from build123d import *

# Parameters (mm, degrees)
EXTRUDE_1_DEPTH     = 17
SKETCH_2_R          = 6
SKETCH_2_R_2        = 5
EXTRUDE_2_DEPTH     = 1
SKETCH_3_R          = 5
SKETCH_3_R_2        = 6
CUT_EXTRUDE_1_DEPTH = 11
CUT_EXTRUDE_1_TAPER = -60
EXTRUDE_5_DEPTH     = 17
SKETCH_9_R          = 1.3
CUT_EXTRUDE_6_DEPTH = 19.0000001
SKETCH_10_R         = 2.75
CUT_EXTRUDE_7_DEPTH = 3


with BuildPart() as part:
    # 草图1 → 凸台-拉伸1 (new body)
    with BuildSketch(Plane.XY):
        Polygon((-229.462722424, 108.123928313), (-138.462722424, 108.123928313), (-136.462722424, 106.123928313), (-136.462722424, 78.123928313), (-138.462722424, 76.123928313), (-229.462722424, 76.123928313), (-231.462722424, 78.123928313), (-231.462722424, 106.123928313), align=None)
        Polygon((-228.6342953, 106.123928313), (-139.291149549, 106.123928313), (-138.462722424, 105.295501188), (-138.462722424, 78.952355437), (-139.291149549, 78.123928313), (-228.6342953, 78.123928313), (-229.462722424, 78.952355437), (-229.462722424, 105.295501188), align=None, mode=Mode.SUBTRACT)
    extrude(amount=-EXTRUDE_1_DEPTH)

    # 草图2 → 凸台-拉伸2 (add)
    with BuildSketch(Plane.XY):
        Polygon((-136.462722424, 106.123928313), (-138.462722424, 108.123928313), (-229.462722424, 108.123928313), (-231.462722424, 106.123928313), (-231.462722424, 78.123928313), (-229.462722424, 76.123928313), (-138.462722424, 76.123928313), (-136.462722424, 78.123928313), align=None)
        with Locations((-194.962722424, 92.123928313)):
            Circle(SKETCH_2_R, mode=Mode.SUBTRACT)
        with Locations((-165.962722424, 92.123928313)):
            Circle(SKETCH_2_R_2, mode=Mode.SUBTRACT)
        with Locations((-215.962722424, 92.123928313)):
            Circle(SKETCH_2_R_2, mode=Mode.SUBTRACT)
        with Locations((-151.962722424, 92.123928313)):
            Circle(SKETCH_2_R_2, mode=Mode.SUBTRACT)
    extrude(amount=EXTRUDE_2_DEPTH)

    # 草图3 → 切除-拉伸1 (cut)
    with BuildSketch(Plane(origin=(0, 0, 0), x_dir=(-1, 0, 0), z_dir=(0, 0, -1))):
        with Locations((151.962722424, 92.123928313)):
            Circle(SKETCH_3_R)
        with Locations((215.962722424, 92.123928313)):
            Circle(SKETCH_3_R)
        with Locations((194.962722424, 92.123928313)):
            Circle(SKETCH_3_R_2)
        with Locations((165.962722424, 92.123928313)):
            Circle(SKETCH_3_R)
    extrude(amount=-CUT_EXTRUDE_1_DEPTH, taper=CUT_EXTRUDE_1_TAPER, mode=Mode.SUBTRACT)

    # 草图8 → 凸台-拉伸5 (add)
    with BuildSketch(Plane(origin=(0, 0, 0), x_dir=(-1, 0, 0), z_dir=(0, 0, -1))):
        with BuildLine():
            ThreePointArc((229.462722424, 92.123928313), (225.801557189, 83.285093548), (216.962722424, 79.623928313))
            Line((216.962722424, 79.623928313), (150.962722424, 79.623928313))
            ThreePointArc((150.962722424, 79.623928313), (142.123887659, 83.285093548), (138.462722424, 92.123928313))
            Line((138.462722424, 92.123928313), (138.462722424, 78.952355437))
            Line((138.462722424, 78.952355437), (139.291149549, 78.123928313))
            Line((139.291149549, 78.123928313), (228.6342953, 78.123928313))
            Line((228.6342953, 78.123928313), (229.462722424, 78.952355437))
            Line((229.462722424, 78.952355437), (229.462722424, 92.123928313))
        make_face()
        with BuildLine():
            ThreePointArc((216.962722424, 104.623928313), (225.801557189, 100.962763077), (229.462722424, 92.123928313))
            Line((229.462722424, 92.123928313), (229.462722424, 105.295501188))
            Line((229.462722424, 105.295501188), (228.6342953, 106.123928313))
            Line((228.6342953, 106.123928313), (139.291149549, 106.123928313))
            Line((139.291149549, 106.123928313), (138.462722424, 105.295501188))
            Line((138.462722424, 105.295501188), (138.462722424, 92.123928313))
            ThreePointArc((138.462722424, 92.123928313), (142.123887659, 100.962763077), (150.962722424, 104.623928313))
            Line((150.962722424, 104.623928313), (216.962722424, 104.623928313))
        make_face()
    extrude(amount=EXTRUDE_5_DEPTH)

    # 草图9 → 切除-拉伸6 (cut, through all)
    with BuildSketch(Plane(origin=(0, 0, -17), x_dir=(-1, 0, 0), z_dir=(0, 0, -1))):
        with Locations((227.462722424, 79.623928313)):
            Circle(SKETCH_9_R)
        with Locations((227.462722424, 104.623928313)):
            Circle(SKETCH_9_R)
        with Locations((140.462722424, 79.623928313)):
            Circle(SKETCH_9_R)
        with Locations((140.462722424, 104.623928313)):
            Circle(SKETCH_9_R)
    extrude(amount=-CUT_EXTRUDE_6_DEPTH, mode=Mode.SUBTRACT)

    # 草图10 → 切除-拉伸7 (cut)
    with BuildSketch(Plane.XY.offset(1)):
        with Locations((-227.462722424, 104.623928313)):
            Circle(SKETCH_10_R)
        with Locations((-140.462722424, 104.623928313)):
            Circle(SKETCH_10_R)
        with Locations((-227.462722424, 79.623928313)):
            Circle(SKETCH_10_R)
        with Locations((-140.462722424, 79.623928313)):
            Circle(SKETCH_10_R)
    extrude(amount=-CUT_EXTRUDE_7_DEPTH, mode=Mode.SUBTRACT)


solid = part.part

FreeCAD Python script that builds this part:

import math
import FreeCAD as App
import Part
import Sketcher
from FreeCAD import Vector
Q = App.Units.Quantity


def add_polygon(sketch, points):
    """Adds a closed chain of lines whose ends are joined by coincident constraints."""
    first, n = sketch.GeometryCount, len(points)
    for a, b in zip(points, points[1:] + points[:1]):
        sketch.addGeometry(Part.LineSegment(App.Vector(*a, 0), App.Vector(*b, 0)), False)
    for i in range(n):
        sketch.addConstraint(Sketcher.Constraint("Coincident", first + i, 2, first + (i + 1) % n, 1))

doc = App.newDocument("Part")
body = doc.addObject("PartDesign::Body", "Body")

# Sketch on XY plane
sketch1 = doc.addObject("Sketcher::SketchObject", "Sketch")
body.addObject(sketch1)
sketch1.AttachmentSupport = (doc.XY_Plane, [""])
sketch1.MapMode = "FlatFace"
add_polygon(sketch1, [(-138.5, 108.1), (-229.5, 108.1), (-231.5, 106.1), (-231.5, 78.1), (-229.5, 76.1), (-138.5, 76.1), (-136.5, 78.1), (-136.5, 106.1)])  # lines 0-7
add_polygon(sketch1, [(-228.6, 106.1), (-139.3, 106.1), (-138.5, 105.3), (-138.5, 79), (-139.3, 78.1), (-228.6, 78.1), (-229.5, 79), (-229.5, 105.3)])  # lines 8-15
sketch1.addConstraint([
    Sketcher.Constraint("Horizontal", 0),
    Sketcher.Constraint("Vertical", 2),
    Sketcher.Constraint("Horizontal", 4),
    Sketcher.Constraint("Vertical", 6),
    Sketcher.Constraint("Horizontal", 8),
    Sketcher.Constraint("Vertical", 10),
    Sketcher.Constraint("Horizontal", 12),
    Sketcher.Constraint("Vertical", 14),
    Sketcher.Constraint("Perpendicular", 1, 3),
    Sketcher.Constraint("Perpendicular", 3, 5),
    Sketcher.Constraint("Perpendicular", 5, 7),
    Sketcher.Constraint("Parallel", 7, 9),
    Sketcher.Constraint("Perpendicular", 9, 11),
    Sketcher.Constraint("Perpendicular", 11, 13),
    Sketcher.Constraint("Perpendicular", 13, 15),
    Sketcher.Constraint("Horizontal", 2, 2, 5, 2),
    Sketcher.Constraint("Horizontal", 1, 2, 6, 2),
    Sketcher.Constraint("Horizontal", 6, 2, 8, 2),
    Sketcher.Constraint("Horizontal", 5, 2, 11, 2),
    Sketcher.Constraint("Horizontal", 10, 2, 13, 2),
    Sketcher.Constraint("Horizontal", 9, 2, 14, 2),
    Sketcher.Constraint("Vertical", 0, 2, 3, 2),
    Sketcher.Constraint("Vertical", 4, 2, 7, 2),
    Sketcher.Constraint("Vertical", 7, 2, 9, 2),
    Sketcher.Constraint("Vertical", 8, 2, 11, 2),
    Sketcher.Constraint("Vertical", 3, 2, 13, 2),
    Sketcher.Constraint("DistanceX", 0, 2, 0, 1, Q("91 mm")),
    Sketcher.Constraint("DistanceY", 2, 2, 2, 1, Q("28 mm")),
    Sketcher.Constraint("DistanceX", 1, 2, 0, 2, Q("2 mm")),
    Sketcher.Constraint("DistanceY", -1, 1, 9, 2, Q("105.295501 mm")),
    Sketcher.Constraint("DistanceX", 8, 1, 8, 2, Q("89.343146 mm")),
    Sketcher.Constraint("DistanceX", 8, 2, -1, 1, Q("139.29115 mm")),
])
pad1 = doc.addObject("PartDesign::Pad", "Pad")
body.addObject(pad1)
pad1.Profile = sketch1
pad1.Length = 17
pad1.Reversed = True

# Sketch on XY plane
sketch2 = doc.addObject("Sketcher::SketchObject", "Sketch001")
body.addObject(sketch2)
sketch2.AttachmentSupport = (doc.XY_Plane, [""])
sketch2.MapMode = "FlatFace"
add_polygon(sketch2, [(-136.5, 106.1), (-138.5, 108.1), (-229.5, 108.1), (-231.5, 106.1), (-231.5, 78.1), (-229.5, 76.1), (-138.5, 76.1), (-136.5, 78.1)])  # lines 0-7
sketch2.addGeometry(Part.Circle(Vector(-216, 92.1, 0), Vector(0, 0, 1), 5), False)  # 8
sketch2.addGeometry(Part.Circle(Vector(-195, 92.1, 0), Vector(0, 0, 1), 6), False)  # 9
sketch2.addGeometry(Part.Circle(Vector(-166, 92.1, 0), Vector(0, 0, 1), 5), False)  # 10
sketch2.addGeometry(Part.Circle(Vector(-152, 92.1, 0), Vector(0, 0, 1), 5), False)  # 11
sketch2.addConstraint([
    Sketcher.Constraint("Horizontal", 1),
    Sketcher.Constraint("Vertical", 3),
    Sketcher.Constraint("Horizontal", 5),
    Sketcher.Constraint("Vertical", 7),
    Sketcher.Constraint("Equal", 8, 10),
    Sketcher.Constraint("Equal", 10, 11),
    Sketcher.Constraint("Perpendicular", 0, 2),
    Sketcher.Constraint("Perpendicular", 2, 4),
    Sketcher.Constraint("Perpendicular", 4, 6),
    Sketcher.Constraint("Horizontal", 8, 3, 9, 3),
    Sketcher.Constraint("Horizontal", 9, 3, 10, 3),
    Sketcher.Constraint("Horizontal", 10, 3, 11, 3),
    Sketcher.Constraint("Horizontal", 3, 2, 6, 2),
    Sketcher.Constraint("Horizontal", 2, 2, 7, 2),
    Sketcher.Constraint("Vertical", 1, 2, 4, 2),
    Sketcher.Constraint("Vertical", 0, 2, 5, 2),
    Sketcher.Constraint("Diameter", 8, Q("10 mm")),
    Sketcher.Constraint("Diameter", 9, Q("12 mm")),
    Sketcher.Constraint("DistanceX", 1, 2, 1, 1, Q("91 mm")),
    Sketcher.Constraint("DistanceY", 3, 2, 3, 1, Q("28 mm")),
    Sketcher.Constraint("DistanceX", 8, 3, 9, 3, Q("21 mm")),
    Sketcher.Constraint("DistanceX", 9, 3, 10, 3, Q("29 mm")),
    Sketcher.Constraint("DistanceX", 10, 3, 11, 3, Q("14 mm")),
    Sketcher.Constraint("DistanceY", 11, 3, 0, 2, Q("16 mm")),
    Sketcher.Constraint("DistanceX", 2, 2, 1, 2, Q("2 mm")),
    Sketcher.Constraint("DistanceX", 11, 3, 0, 2, Q("13.5 mm")),
    Sketcher.Constraint("DistanceY", -1, 1, 8, 3, Q("92.123928 mm")),
    Sketcher.Constraint("DistanceX", 8, 3, -1, 1, Q("215.962722 mm")),
])
pad2 = doc.addObject("PartDesign::Pad", "Pad001")
body.addObject(pad2)
pad2.Profile = sketch2
pad2.Length = 1

# Sketch on XY plane
sketch3 = doc.addObject("Sketcher::SketchObject", "Sketch002")
body.addObject(sketch3)
sketch3.AttachmentSupport = (doc.XY_Plane, [""])
sketch3.MapMode = "FlatFace"
sketch3.addGeometry([
    Part.Circle(Vector(-152, 92, 0), Vector(0, 0, 1), 5),
    Part.Circle(Vector(-216, 92, 0), Vector(0, 0, 1), 5),
    Part.Circle(Vector(-195, 92, 0), Vector(0, 0, 1), 6),
    Part.Circle(Vector(-166, 92, 0), Vector(0, 0, 1), 5),
], False)
sketch3.addConstraint([
    Sketcher.Constraint("Equal", 0, 1),
    Sketcher.Constraint("Equal", 1, 3),
    Sketcher.Constraint("Horizontal", 0, 3, 1, 3),
    Sketcher.Constraint("Horizontal", 1, 3, 2, 3),
    Sketcher.Constraint("Horizontal", 2, 3, 3, 3),
    Sketcher.Constraint("Diameter", 0, Q("10 mm")),
    Sketcher.Constraint("Diameter", 2, Q("12 mm")),
    Sketcher.Constraint("DistanceX", 1, 3, 0, 3, Q("64 mm")),
    Sketcher.Constraint("DistanceX", 1, 3, 2, 3, Q("21 mm")),
    Sketcher.Constraint("DistanceX", 3, 3, 0, 3, Q("14 mm")),
    Sketcher.Constraint("DistanceY", -1, 1, 0, 3, Q("92.123928 mm")),
    Sketcher.Constraint("DistanceX", 0, 3, -1, 1, Q("151.962722 mm")),
])
pocket1 = doc.addObject("PartDesign::Pocket", "Pocket")
body.addObject(pocket1)
pocket1.Profile = sketch3
pocket1.Length = 11
pocket1.Reversed = True
pocket1.TaperAngle = 60

# Sketch on XY plane
sketch4 = doc.addObject("Sketcher::SketchObject", "Sketch003")
body.addObject(sketch4)
sketch4.AttachmentSupport = (doc.XY_Plane, [""])
sketch4.MapMode = "FlatFace"
sketch4.addGeometry([
    Part.ArcOfCircle(Part.Circle(Vector(-217, 92.1, 0), Vector(0, 0, 1), 12.5), math.radians(180), math.radians(270)),  # 0
    Part.LineSegment(Vector(-217, 79.6, 0), Vector(-151, 79.6, 0)),  # 1
    Part.ArcOfCircle(Part.Circle(Vector(-151, 92.1, 0), Vector(0, 0, 1), 12.5), math.radians(-90), math.radians(0)),  # 2
    Part.LineSegment(Vector(-138.5, 92.1, 0), Vector(-138.5, 79, 0)),  # 3
    Part.LineSegment(Vector(-138.5, 79, 0), Vector(-139.3, 78.1, 0)),  # 4
    Part.LineSegment(Vector(-139.3, 78.1, 0), Vector(-228.6, 78.1, 0)),  # 5
    Part.LineSegment(Vector(-228.6, 78.1, 0), Vector(-229.5, 79, 0)),  # 6
    Part.LineSegment(Vector(-229.5, 79, 0), Vector(-229.5, 92.1, 0)),  # 7
    Part.ArcOfCircle(Part.Circle(Vector(-217, 92.1, 0), Vector(0, 0, 1), 12.5), math.radians(90), math.radians(180)),  # 8
    Part.LineSegment(Vector(-229.5, 92.1, 0), Vector(-229.5, 105.3, 0)),  # 9
    Part.LineSegment(Vector(-229.5, 105.3, 0), Vector(-228.6, 106.1, 0)),  # 10
    Part.LineSegment(Vector(-228.6, 106.1, 0), Vector(-139.3, 106.1, 0)),  # 11
    Part.LineSegment(Vector(-139.3, 106.1, 0), Vector(-138.5, 105.3, 0)),  # 12
    Part.LineSegment(Vector(-138.5, 105.3, 0), Vector(-138.5, 92.1, 0)),  # 13
    Part.ArcOfCircle(Part.Circle(Vector(-151, 92.1, 0), Vector(0, 0, 1), 12.5), math.radians(0), math.radians(90)),  # 14
    Part.LineSegment(Vector(-151, 104.6, 0), Vector(-217, 104.6, 0)),  # 15
], False)
sketch4.addConstraint([
    Sketcher.Constraint("Tangent", 0, 2, 1, 1),
    Sketcher.Constraint("Tangent", 1, 2, 2, 1),
    Sketcher.Constraint("Tangent", 2, 2, 3, 1),
    Sketcher.Constraint("Coincident", 3, 2, 4, 1),
    Sketcher.Constraint("Coincident", 4, 2, 5, 1),
    Sketcher.Constraint("Coincident", 5, 2, 6, 1),
    Sketcher.Constraint("Coincident", 6, 2, 7, 1),
    Sketcher.Constraint("Tangent", 7, 2, 0, 1),
    Sketcher.Constraint("Tangent", 8, 2, 9, 1),
    Sketcher.Constraint("Coincident", 9, 2, 10, 1),
    Sketcher.Constraint("Coincident", 10, 2, 11, 1),
    Sketcher.Constraint("Coincident", 11, 2, 12, 1),
    Sketcher.Constraint("Coincident", 12, 2, 13, 1),
    Sketcher.Constraint("Tangent", 13, 2, 14, 1),
    Sketcher.Constraint("Tangent", 14, 2, 15, 1),
    Sketcher.Constraint("Tangent", 15, 2, 8, 1),
    Sketcher.Constraint("Horizontal", 1),
    Sketcher.Constraint("Vertical", 3),
    Sketcher.Constraint("Horizontal", 5),
    Sketcher.Constraint("Vertical", 7),
    Sketcher.Constraint("Vertical", 9),
    Sketcher.Constraint("Horizontal", 11),
    Sketcher.Constraint("Vertical", 13),
    Sketcher.Constraint("Horizontal", 15),
    Sketcher.Constraint("Coincident", 8, 3, 0, 3),
    Sketcher.Constraint("Coincident", 14, 3, 2, 3),
    Sketcher.Constraint("Equal", 0, 2),
    Sketcher.Constraint("Equal", 2, 8),
    Sketcher.Constraint("Perpendicular", 4, 6),
    Sketcher.Constraint("Perpendicular", 6, 10),
    Sketcher.Constraint("Perpendicular", 10, 12),
    Sketcher.Constraint("Horizontal", 3, 2, 6, 2),
    Sketcher.Constraint("Horizontal", 9, 2, 12, 2),
    Sketcher.Constraint("Vertical", 5, 2, 10, 2),
    Sketcher.Constraint("Vertical", 4, 2, 11, 2),
    Sketcher.Constraint("Equal", 7, 9),
    Sketcher.Constraint("Radius", 0, Q("12.5 mm")),
    Sketcher.Constraint("DistanceX", 1, 1, 1, 2, Q("66 mm")),
    Sketcher.Constraint("DistanceY", 4, 2, 2, 2, Q("14 mm")),
    Sketcher.Constraint("DistanceY", -1, 1, 9, 2, Q("105.295501 mm")),
    Sketcher.Constraint("DistanceX", 5, 2, 5, 1, Q("89.343146 mm")),
    Sketcher.Constraint("DistanceX", 4, 2, -1, 1, Q("139.29115 mm")),
])
pad3 = doc.addObject("PartDesign::Pad", "Pad002")
body.addObject(pad3)
pad3.Profile = sketch4
pad3.Length = 17
pad3.Reversed = True

# Sketch on XY plane
sketch5 = doc.addObject("Sketcher::SketchObject", "Sketch004")
body.addObject(sketch5)
sketch5.AttachmentSupport = (doc.XY_Plane, [""])
sketch5.MapMode = "FlatFace"
sketch5.AttachmentOffset = App.Placement(Vector(0, 0, -17), App.Rotation())
sketch5.addGeometry([
    Part.Circle(Vector(-227.5, 79.6, 0), Vector(0, 0, 1), 1.3),
    Part.Circle(Vector(-227.5, 104.6, 0), Vector(0, 0, 1), 1.3),
    Part.Circle(Vector(-140.5, 79.6, 0), Vector(0, 0, 1), 1.3),
    Part.Circle(Vector(-140.5, 104.6, 0), Vector(0, 0, 1), 1.3),
], False)
sketch5.addConstraint([
    Sketcher.Constraint("Equal", 0, 1),
    Sketcher.Constraint("Equal", 1, 2),
    Sketcher.Constraint("Equal", 2, 3),
    Sketcher.Constraint("Horizontal", 0, 3, 2, 3),
    Sketcher.Constraint("Horizontal", 1, 3, 3, 3),
    Sketcher.Constraint("Vertical", 0, 3, 1, 3),
    Sketcher.Constraint("Vertical", 2, 3, 3, 3),
    Sketcher.Constraint("Diameter", 0, Q("2.6 mm")),
    Sketcher.Constraint("DistanceY", 0, 3, 1, 3, Q("25 mm")),
    Sketcher.Constraint("DistanceX", 0, 3, 2, 3, Q("87 mm")),
    Sketcher.Constraint("DistanceY", -1, 1, 0, 3, Q("79.623928 mm")),
    Sketcher.Constraint("DistanceX", 0, 3, -1, 1, Q("227.462722 mm")),
])
pocket2 = doc.addObject("PartDesign::Pocket", "Pocket001")
body.addObject(pocket2)
pocket2.Profile = sketch5
pocket2.Type = "ThroughAll"
pocket2.Reversed = True

# Sketch on XY plane
sketch6 = doc.addObject("Sketcher::SketchObject", "Sketch005")
body.addObject(sketch6)
sketch6.AttachmentSupport = (doc.XY_Plane, [""])
sketch6.MapMode = "FlatFace"
sketch6.AttachmentOffset = App.Placement(Vector(0, 0, 1), App.Rotation())
sketch6.addGeometry([
    Part.Circle(Vector(-227.5, 104.6, 0), Vector(0, 0, 1), 2.8),
    Part.Circle(Vector(-140.5, 104.6, 0), Vector(0, 0, 1), 2.8),
    Part.Circle(Vector(-227.5, 79.6, 0), Vector(0, 0, 1), 2.8),
    Part.Circle(Vector(-140.5, 79.6, 0), Vector(0, 0, 1), 2.8),
], False)
sketch6.addConstraint([
    Sketcher.Constraint("Equal", 0, 1),
    Sketcher.Constraint("Equal", 1, 2),
    Sketcher.Constraint("Equal", 2, 3),
    Sketcher.Constraint("Horizontal", 0, 3, 1, 3),
    Sketcher.Constraint("Horizontal", 2, 3, 3, 3),
    Sketcher.Constraint("Vertical", 0, 3, 2, 3),
    Sketcher.Constraint("Vertical", 1, 3, 3, 3),
    Sketcher.Constraint("Diameter", 0, Q("5.5 mm")),
    Sketcher.Constraint("DistanceX", 0, 3, 1, 3, Q("87 mm")),
    Sketcher.Constraint("DistanceY", 2, 3, 0, 3, Q("25 mm")),
    Sketcher.Constraint("DistanceY", -1, 1, 0, 3, Q("104.623928 mm")),
    Sketcher.Constraint("DistanceX", 0, 3, -1, 1, Q("227.462722 mm")),
])
pocket3 = doc.addObject("PartDesign::Pocket", "Pocket002")
body.addObject(pocket3)
pocket3.Profile = sketch6
pocket3.Length = 3

doc.recompute()
